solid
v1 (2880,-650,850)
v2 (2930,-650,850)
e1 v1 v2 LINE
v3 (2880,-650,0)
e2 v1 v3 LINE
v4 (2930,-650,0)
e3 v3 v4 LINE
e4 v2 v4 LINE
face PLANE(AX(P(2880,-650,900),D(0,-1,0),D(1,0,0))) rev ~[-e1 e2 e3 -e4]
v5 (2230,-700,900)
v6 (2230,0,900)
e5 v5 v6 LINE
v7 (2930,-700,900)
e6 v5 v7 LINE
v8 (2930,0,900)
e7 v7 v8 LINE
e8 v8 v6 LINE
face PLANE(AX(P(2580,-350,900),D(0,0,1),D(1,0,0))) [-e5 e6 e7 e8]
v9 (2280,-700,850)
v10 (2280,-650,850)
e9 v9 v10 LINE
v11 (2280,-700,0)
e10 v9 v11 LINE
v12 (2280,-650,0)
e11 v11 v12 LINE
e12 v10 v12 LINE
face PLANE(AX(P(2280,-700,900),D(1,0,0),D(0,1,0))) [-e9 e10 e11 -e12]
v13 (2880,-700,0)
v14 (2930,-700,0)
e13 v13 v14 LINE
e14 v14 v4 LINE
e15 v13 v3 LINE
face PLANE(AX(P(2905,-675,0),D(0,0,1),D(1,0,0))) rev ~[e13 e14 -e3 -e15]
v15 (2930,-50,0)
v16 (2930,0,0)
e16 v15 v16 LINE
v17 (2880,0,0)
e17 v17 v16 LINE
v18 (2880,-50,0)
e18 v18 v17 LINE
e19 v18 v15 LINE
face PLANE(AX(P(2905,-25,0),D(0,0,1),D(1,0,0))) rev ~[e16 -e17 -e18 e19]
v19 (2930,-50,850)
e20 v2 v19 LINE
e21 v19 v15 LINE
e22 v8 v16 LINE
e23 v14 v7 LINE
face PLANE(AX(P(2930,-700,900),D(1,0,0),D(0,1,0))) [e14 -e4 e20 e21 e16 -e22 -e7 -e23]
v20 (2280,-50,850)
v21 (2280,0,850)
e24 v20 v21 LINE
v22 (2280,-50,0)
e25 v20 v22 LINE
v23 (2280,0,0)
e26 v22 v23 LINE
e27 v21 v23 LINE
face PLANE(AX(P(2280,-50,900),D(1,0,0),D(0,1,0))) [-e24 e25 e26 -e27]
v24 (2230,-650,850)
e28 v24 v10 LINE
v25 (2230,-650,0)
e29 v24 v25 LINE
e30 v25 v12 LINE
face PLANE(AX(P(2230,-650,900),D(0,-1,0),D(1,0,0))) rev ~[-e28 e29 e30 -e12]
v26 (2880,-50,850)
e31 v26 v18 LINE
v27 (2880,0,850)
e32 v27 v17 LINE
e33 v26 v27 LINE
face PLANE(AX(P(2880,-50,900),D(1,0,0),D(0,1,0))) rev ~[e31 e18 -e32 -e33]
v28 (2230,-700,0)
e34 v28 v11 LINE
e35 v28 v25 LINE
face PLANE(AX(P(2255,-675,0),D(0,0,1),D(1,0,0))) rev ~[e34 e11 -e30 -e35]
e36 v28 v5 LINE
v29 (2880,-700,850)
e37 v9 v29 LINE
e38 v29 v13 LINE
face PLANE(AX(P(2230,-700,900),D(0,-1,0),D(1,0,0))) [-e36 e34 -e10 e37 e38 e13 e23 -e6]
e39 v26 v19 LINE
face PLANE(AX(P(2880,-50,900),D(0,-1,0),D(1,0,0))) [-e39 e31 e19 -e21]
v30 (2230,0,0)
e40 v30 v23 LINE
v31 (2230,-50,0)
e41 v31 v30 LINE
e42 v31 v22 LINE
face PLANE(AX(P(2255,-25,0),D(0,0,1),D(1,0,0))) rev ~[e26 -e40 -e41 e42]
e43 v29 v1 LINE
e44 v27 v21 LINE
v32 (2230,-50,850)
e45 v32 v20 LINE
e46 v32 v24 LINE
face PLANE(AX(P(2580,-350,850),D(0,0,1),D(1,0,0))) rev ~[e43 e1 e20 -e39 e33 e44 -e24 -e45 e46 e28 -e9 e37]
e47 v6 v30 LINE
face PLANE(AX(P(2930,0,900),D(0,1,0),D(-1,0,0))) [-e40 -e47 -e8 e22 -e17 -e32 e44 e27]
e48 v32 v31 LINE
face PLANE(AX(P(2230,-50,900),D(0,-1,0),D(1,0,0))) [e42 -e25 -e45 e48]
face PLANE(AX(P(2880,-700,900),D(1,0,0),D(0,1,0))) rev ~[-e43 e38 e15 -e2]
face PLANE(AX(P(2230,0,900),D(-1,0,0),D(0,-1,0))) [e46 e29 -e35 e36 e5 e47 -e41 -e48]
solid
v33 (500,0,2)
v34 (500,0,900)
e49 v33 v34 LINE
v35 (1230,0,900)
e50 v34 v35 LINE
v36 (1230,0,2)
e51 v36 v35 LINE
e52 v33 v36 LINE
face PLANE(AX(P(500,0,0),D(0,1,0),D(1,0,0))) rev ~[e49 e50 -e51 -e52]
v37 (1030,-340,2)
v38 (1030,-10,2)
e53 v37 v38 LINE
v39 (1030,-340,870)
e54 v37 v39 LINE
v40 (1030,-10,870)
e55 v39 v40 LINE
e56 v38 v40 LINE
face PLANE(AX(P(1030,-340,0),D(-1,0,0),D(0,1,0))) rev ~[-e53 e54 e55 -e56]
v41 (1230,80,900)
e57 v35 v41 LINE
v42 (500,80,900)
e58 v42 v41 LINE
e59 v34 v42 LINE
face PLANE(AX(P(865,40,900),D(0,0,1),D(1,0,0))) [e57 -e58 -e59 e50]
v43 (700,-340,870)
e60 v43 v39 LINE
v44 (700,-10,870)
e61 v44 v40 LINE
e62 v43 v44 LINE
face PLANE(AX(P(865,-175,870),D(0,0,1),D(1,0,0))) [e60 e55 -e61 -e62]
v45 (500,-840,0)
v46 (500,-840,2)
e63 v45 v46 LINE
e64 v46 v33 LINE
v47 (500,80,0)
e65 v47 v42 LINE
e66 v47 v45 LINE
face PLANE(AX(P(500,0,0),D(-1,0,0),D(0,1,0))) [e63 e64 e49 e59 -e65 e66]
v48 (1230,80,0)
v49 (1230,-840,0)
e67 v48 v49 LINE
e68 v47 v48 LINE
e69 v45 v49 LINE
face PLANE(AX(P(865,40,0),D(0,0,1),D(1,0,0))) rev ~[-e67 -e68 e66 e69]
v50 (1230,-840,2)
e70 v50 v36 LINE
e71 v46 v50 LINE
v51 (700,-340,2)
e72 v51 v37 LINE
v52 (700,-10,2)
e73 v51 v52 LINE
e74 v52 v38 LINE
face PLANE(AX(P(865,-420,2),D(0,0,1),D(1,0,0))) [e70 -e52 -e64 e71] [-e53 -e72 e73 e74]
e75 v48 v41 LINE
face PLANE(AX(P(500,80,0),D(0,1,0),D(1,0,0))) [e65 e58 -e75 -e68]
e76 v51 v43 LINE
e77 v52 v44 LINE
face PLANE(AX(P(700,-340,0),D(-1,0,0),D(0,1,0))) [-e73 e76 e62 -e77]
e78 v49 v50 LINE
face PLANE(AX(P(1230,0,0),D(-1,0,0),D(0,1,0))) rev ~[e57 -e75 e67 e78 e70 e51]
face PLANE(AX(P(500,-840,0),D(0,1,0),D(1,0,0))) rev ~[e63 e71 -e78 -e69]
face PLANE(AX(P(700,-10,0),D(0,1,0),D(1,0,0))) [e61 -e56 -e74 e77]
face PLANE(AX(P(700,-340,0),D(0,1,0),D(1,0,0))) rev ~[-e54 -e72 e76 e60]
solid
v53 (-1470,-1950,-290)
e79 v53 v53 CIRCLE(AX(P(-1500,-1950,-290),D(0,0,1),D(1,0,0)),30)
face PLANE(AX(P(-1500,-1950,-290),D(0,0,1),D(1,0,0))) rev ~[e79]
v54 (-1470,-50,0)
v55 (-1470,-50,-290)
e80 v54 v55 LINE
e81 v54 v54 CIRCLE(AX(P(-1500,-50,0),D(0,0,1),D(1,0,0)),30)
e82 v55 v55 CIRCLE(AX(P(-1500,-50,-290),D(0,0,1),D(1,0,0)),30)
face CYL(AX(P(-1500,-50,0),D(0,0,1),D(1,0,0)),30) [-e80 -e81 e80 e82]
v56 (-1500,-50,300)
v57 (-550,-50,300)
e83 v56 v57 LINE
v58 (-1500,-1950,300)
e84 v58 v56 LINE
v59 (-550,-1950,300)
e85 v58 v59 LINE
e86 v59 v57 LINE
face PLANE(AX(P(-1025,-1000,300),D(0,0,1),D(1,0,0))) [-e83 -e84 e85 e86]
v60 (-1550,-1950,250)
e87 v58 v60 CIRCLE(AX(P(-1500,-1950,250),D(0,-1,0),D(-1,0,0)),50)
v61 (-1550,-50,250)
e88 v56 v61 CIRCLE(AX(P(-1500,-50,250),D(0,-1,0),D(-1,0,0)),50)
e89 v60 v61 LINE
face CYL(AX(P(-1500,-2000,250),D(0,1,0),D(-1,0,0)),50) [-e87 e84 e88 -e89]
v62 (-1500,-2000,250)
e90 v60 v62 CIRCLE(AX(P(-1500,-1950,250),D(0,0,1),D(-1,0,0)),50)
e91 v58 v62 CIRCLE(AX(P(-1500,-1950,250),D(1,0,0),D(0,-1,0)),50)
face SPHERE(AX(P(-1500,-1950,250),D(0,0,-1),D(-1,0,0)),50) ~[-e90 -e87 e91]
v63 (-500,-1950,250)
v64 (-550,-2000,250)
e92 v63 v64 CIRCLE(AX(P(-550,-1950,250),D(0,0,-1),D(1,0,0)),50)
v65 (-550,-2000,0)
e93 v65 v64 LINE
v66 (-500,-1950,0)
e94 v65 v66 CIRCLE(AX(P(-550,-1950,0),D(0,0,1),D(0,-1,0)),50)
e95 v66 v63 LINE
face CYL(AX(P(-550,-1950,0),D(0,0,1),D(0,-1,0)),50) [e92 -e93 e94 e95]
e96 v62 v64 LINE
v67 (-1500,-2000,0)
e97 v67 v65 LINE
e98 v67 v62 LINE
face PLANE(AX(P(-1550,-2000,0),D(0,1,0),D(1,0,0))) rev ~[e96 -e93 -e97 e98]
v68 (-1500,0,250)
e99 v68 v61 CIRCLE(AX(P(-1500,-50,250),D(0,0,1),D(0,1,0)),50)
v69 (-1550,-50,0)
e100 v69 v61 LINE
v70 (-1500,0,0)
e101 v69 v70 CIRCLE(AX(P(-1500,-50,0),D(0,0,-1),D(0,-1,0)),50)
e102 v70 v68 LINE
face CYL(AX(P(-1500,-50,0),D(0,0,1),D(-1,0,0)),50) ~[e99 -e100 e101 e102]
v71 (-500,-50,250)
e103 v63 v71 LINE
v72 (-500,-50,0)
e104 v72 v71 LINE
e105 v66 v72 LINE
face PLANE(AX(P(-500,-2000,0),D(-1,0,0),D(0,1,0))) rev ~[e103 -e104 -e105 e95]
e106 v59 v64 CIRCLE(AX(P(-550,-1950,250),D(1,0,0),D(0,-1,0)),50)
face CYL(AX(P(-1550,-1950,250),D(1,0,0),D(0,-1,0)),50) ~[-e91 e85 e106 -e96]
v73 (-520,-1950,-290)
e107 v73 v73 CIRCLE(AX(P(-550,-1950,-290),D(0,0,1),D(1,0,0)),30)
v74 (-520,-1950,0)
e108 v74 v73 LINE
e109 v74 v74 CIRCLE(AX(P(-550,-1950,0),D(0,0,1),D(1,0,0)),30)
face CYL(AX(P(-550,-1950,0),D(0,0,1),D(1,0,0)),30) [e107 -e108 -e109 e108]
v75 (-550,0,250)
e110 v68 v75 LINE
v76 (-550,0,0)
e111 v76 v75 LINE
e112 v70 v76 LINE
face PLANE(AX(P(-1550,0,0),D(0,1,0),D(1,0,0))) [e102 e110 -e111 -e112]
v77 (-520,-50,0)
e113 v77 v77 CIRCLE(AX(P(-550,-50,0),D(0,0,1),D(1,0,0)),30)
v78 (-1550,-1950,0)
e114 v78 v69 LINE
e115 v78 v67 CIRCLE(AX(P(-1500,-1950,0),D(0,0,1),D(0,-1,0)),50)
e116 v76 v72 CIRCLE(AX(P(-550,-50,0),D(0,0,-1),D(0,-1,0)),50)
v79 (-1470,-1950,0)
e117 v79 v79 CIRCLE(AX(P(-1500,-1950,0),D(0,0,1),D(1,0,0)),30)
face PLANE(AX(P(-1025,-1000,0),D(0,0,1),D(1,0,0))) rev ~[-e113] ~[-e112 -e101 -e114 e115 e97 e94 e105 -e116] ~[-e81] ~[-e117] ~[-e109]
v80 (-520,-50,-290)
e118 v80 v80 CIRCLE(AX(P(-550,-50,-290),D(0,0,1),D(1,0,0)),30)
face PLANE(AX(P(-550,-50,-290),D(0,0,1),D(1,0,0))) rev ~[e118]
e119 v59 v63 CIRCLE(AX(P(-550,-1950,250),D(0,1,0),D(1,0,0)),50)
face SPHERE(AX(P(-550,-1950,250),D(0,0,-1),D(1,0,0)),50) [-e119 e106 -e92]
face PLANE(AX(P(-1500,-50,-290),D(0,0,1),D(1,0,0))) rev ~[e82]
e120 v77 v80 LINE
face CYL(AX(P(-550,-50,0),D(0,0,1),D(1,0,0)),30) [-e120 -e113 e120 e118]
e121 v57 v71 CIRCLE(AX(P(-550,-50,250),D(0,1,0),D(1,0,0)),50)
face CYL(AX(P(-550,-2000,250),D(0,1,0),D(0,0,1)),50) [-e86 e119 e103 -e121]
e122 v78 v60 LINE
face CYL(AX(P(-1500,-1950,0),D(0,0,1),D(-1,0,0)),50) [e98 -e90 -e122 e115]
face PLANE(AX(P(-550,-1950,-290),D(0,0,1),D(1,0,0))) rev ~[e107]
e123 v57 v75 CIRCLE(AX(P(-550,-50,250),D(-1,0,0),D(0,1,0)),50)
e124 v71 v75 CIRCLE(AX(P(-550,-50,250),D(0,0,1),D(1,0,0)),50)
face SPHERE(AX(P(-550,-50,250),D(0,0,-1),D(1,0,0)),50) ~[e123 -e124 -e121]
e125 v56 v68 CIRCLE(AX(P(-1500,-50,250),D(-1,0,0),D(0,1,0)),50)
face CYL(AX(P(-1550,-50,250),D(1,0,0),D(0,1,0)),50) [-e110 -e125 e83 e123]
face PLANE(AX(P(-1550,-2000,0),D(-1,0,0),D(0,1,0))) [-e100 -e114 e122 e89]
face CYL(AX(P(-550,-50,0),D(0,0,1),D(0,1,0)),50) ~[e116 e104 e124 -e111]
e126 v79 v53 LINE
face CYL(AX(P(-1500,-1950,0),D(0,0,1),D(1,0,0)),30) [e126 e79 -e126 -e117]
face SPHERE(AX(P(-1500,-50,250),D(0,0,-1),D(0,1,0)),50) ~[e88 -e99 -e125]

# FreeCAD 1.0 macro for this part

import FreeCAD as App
import Part
import Sketcher

V = App.Vector
Q = App.Units.Quantity


def edges_at(feature, points):
    """Names of the edges that pass closest to the given points."""
    edges = feature.Shape.Edges
    near = lambda p: min(range(len(edges)), key=lambda i: edges[i].distToShape(Part.Vertex(*p))[0])
    return sorted({f"Edge{near(p) + 1}" for p in points})


def add_polygon(sketch, points):
    """Adds a closed chain of lines whose ends are joined by coincident constraints."""
    first, n = sketch.GeometryCount, len(points)
    for a, b in zip(points, points[1:] + points[:1]):
        sketch.addGeometry(Part.LineSegment(App.Vector(*a, 0), App.Vector(*b, 0)), False)
    for i in range(n):
        sketch.addConstraint(Sketcher.Constraint("Coincident", first + i, 2, first + (i + 1) % n, 1))

doc = App.newDocument("Part")
body = doc.addObject("PartDesign::Body", "Body")

# Sketch on XY plane
sketch1 = body.newObject("Sketcher::SketchObject", "Sketch")
sketch1.AttachmentSupport = (doc.getObject("XY_Plane"), [""])
sketch1.MapMode = "FlatFace"
add_polygon(sketch1, [(-1550, 0), (-1550, -2000), (-500, -2000), (-500, 0)])  # lines 0-3
sketch1.addConstraint([
    Sketcher.Constraint("Vertical", 0),
    Sketcher.Constraint("Horizontal", 1),
    Sketcher.Constraint("Vertical", 2),
    Sketcher.Constraint("Horizontal", 3),
    Sketcher.Constraint("PointOnObject", 2, 2, -1),
    Sketcher.Constraint("DistanceX", 1, 1, 1, 2, Q("1050 mm")),
    Sketcher.Constraint("DistanceY", 0, 2, 0, 1, Q("2000 mm")),
    Sketcher.Constraint("DistanceX", 0, 2, -1, 1, Q("1550 mm")),
])
pad1 = body.newObject("PartDesign::Pad", "Pad")
pad1.Profile = sketch1
pad1.Length = 300

# Sketch on XY plane
sketch2 = body.newObject("Sketcher::SketchObject", "Sketch001")
sketch2.AttachmentSupport = (doc.getObject("XY_Plane"), [""])
sketch2.MapMode = "FlatFace"
sketch2.addGeometry([
    Part.Circle(V(-550, -50, 0), V(0, 0, 1), 30),
    Part.Circle(V(-1500, -50, 0), V(0, 0, 1), 30),
    Part.Circle(V(-1500, -1950, 0), V(0, 0, 1), 30),
    Part.Circle(V(-550, -1950, 0), V(0, 0, 1), 30),
], False)
sketch2.addConstraint([
    Sketcher.Constraint("Equal", 0, 1),
    Sketcher.Constraint("Equal", 1, 2),
    Sketcher.Constraint("Equal", 2, 3),
    Sketcher.Constraint("Horizontal", 0, 3, 1, 3),
    Sketcher.Constraint("Horizontal", 2, 3, 3, 3),
    Sketcher.Constraint("Vertical", 1, 3, 2, 3),
    Sketcher.Constraint("Vertical", 0, 3, 3, 3),
    Sketcher.Constraint("Diameter", 0, Q("60 mm")),
    Sketcher.Constraint("DistanceX", 0, 3, -1, 1, Q("550 mm")),
    Sketcher.Constraint("DistanceY", 0, 3, -1, 1, Q("50 mm")),
    Sketcher.Constraint("DistanceX", 1, 3, -1, 1, Q("1500 mm")),
    Sketcher.Constraint("DistanceY", 2, 3, -1, 1, Q("1950 mm")),
])
pad2 = body.newObject("PartDesign::Pad", "Pad001")
pad2.Profile = sketch2
pad2.Length = 290
pad2.Reversed = True
doc.recompute()

fillet = body.newObject("PartDesign::Fillet", "Fillet")
fillet.Base = (pad2, edges_at(pad2, [
    (-1550, 0, 150),
    (-1550, -2000, 150),
    (-500, -2000, 150),
    (-500, 0, 150),
    (-500, -1000, 300),
    (-1025, 0, 300),
    (-1550, -1000, 300),
    (-1025, -2000, 300),
]))
fillet.Radius = 50
body2 = doc.addObject("PartDesign::Body", "Body001")

# Sketch on XY plane
sketch3 = body2.newObject("Sketcher::SketchObject", "Sketch002")
sketch3.AttachmentSupport = (doc.getObject("XY_Plane001"), [""])
sketch3.MapMode = "FlatFace"
add_polygon(sketch3, [(700, -10), (700, -340), (1030, -340), (1030, -10)])  # lines 0-3
sketch3.addConstraint([
    Sketcher.Constraint("Vertical", 0),
    Sketcher.Constraint("Horizontal", 1),
    Sketcher.Constraint("Vertical", 2),
    Sketcher.Constraint("Horizontal", 3),
    Sketcher.Constraint("Equal", 3, 0),
    Sketcher.Constraint("DistanceX", 1, 1, 1, 2, Q("330 mm")),
    Sketcher.Constraint("DistanceX", -1, 1, 0, 2, Q("700 mm")),
    Sketcher.Constraint("DistanceY", 0, 2, -1, 1, Q("340 mm")),
])
pad3 = body2.newObject("PartDesign::Pad", "Pad002")
pad3.Profile = sketch3
pad3.Length = 870

# Sketch on XY plane
sketch4 = body2.newObject("Sketcher::SketchObject", "Sketch003")
sketch4.AttachmentSupport = (doc.getObject("XY_Plane001"), [""])
sketch4.MapMode = "FlatFace"
add_polygon(sketch4, [(500, 0), (500, -840), (1230, -840), (1230, 0)])  # lines 0-3
add_polygon(sketch4, [(1030, -340), (700, -340), (700, -10), (1030, -10)])  # lines 4-7
sketch4.addConstraint([
    Sketcher.Constraint("Vertical", 0),
    Sketcher.Constraint("Horizontal", 1),
    Sketcher.Constraint("Vertical", 2),
    Sketcher.Constraint("Horizontal", 3),
    Sketcher.Constraint("Horizontal", 4),
    Sketcher.Constraint("Vertical", 5),
    Sketcher.Constraint("Horizontal", 6),
    Sketcher.Constraint("Vertical", 7),
    Sketcher.Constraint("PointOnObject", 2, 2, -1),
    Sketcher.Constraint("Equal", 6, 5),
    Sketcher.Constraint("DistanceX", 1, 1, 1, 2, Q("730 mm")),
    Sketcher.Constraint("DistanceX", 4, 2, 4, 1, Q("330 mm")),
    Sketcher.Constraint("DistanceY", 0, 2, 0, 1, Q("840 mm")),
    Sketcher.Constraint("DistanceX", -1, 1, 0, 2, Q("500 mm")),
    Sketcher.Constraint("DistanceX", -1, 1, 4, 2, Q("700 mm")),
    Sketcher.Constraint("DistanceY", 4, 2, -1, 1, Q("340 mm")),
])
pad4 = body2.newObject("PartDesign::Pad", "Pad003")
pad4.Profile = sketch4
pad4.Length = 2

# Sketch on XY plane
sketch5 = body2.newObject("Sketcher::SketchObject", "Sketch004")
sketch5.AttachmentSupport = (doc.getObject("XY_Plane001"), [""])
sketch5.MapMode = "FlatFace"
add_polygon(sketch5, [(500, 80), (500, 0), (1230, 0), (1230, 80)])  # lines 0-3
sketch5.addConstraint([
    Sketcher.Constraint("Vertical", 0),
    Sketcher.Constraint("Horizontal", 1),
    Sketcher.Constraint("Vertical", 2),
    Sketcher.Constraint("Horizontal", 3),
    Sketcher.Constraint("PointOnObject", 0, 2, -1),
    Sketcher.Constraint("DistanceX", 1, 1, 1, 2, Q("730 mm")),
    Sketcher.Constraint("DistanceY", 0, 2, 0, 1, Q("80 mm")),
    Sketcher.Constraint("DistanceX", -1, 1, 0, 2, Q("500 mm")),
])
pad5 = body2.newObject("PartDesign::Pad", "Pad004")
pad5.Profile = sketch5
pad5.Length = 900
body3 = doc.addObject("PartDesign::Body", "Body002")

# Sketch on XY plane
sketch6 = body3.newObject("Sketcher::SketchObject", "Sketch005")
sketch6.AttachmentSupport = (doc.getObject("XY_Plane002"), [""])
sketch6.MapMode = "FlatFace"
sketch6.AttachmentOffset = App.Placement(V(0, 0, 900), App.Rotation())
add_polygon(sketch6, [(2230, 0), (2230, -700), (2930, -700), (2930, 0)])  # lines 0-3
sketch6.addConstraint([
    Sketcher.Constraint("Vertical", 0),
    Sketcher.Constraint("Horizontal", 1),
    Sketcher.Constraint("Vertical", 2),
    Sketcher.Constraint("Horizontal", 3),
    Sketcher.Constraint("PointOnObject", 2, 2, -1),
    Sketcher.Constraint("Equal", 3, 0),
    Sketcher.Constraint("DistanceX", 1, 1, 1, 2, Q("700 mm")),
    Sketcher.Constraint("DistanceX", -1, 1, 0, 2, Q("2230 mm")),
])
pad6 = body3.newObject("PartDesign::Pad", "Pad005")
pad6.Profile = sketch6
pad6.Length = 50
pad6.Reversed = True

# Sketch on XY plane
sketch7 = body3.newObject("Sketcher::SketchObject", "Sketch006")
sketch7.AttachmentSupport = (doc.getObject("XY_Plane002"), [""])
sketch7.MapMode = "FlatFace"
sketch7.AttachmentOffset = App.Placement(V(0, 0, 900), App.Rotation())
add_polygon(sketch7, [(2230, -650), (2230, -700), (2280, -700), (2280, -650)])  # lines 0-3
add_polygon(sketch7, [(2880, -650), (2880, -700), (2930, -700), (2930, -650)])  # lines 4-7
add_polygon(sketch7, [(2230, 0), (2230, -50), (2280, -50), (2280, 0)])  # lines 8-11
add_polygon(sketch7, [(2880, 0), (2880, -50), (2930, -50), (2930, 0)])  # lines 12-15
sketch7.addConstraint([
    Sketcher.Constraint("Vertical", 0),
    Sketcher.Constraint("Horizontal", 1),
    Sketcher.Constraint("Vertical", 2),
    Sketcher.Constraint("Horizontal", 3),
    Sketcher.Constraint("Vertical", 4),
    Sketcher.Constraint("Horizontal", 5),
    Sketcher.Constraint("Vertical", 6),
    Sketcher.Constraint("Horizontal", 7),
    Sketcher.Constraint("Vertical", 8),
    Sketcher.Constraint("Horizontal", 9),
    Sketcher.Constraint("Vertical", 10),
    Sketcher.Constraint("Horizontal", 11),
    Sketcher.Constraint("Vertical", 12),
    Sketcher.Constraint("Horizontal", 13),
    Sketcher.Constraint("Vertical", 14),
    Sketcher.Constraint("Horizontal", 15),
    Sketcher.Constraint("PointOnObject", 10, 2, -1),
    Sketcher.Constraint("PointOnObject", 14, 2, -1),
    Sketcher.Constraint("Horizontal", 1, 2, 4, 2),
    Sketcher.Constraint("Horizontal", 3, 2, 6, 2),
    Sketcher.Constraint("Horizontal", 9, 2, 12, 2),
    Sketcher.Constraint("Vertical", 3, 2, 8, 2),
    Sketcher.Constraint("Vertical", 2, 2, 9, 2),
    Sketcher.Constraint("Vertical", 7, 2, 12, 2),
    Sketcher.Constraint("Vertical", 6, 2, 13, 2),
    Sketcher.Constraint("Equal", 3, 5),
    Sketcher.Constraint("Equal", 15, 0),
    Sketcher.Constraint("Equal", 6, 8),
    Sketcher.Constraint("DistanceX", 1, 1, 1, 2, Q("50 mm")),
    Sketcher.Constraint("DistanceX", -1, 1, 0, 2, Q("2230 mm")),
    Sketcher.Constraint("DistanceY", 0, 2, -1, 1, Q("700 mm")),
    Sketcher.Constraint("DistanceX", -1, 1, 4, 2, Q("2880 mm")),
])
pad7 = body3.newObject("PartDesign::Pad", "Pad006")
pad7.Profile = sketch7
pad7.Length = 900
pad7.Reversed = True

doc.recompute()
